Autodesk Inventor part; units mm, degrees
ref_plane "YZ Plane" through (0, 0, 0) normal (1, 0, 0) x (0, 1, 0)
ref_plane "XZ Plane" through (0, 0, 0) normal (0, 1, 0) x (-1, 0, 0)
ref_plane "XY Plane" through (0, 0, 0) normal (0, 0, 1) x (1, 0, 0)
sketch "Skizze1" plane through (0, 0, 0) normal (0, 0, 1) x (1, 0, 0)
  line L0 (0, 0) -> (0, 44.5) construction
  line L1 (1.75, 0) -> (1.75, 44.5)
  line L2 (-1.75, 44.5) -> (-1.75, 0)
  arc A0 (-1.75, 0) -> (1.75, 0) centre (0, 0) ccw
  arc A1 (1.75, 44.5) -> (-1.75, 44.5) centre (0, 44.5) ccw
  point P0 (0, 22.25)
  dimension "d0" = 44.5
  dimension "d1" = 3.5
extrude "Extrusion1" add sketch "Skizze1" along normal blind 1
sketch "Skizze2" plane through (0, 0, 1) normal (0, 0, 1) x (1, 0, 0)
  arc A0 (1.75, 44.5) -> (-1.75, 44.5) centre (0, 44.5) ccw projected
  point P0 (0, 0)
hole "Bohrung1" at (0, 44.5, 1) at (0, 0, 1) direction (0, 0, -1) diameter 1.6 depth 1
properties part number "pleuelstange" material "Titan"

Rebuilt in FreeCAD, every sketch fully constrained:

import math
import FreeCAD as App
import Part
import Sketcher
Q = App.Units.Quantity

doc = App.newDocument("Part")
body = doc.addObject("PartDesign::Body", "Body")

# Sketch on XY plane
sketch1 = body.newObject("Sketcher::SketchObject", "Sketch")
sketch1.AttachmentSupport = (doc.getObject("XY_Plane"), [""])
sketch1.MapMode = "FlatFace"
sketch1.addGeometry(Part.ArcOfCircle(Part.Circle(App.Vector(0, 0, 0), App.Vector(0, 0, 1), 1.8), math.radians(180), math.radians(360)), False)
sketch1.addGeometry(Part.LineSegment(App.Vector(1.8, 0, 0), App.Vector(1.8, 44.5, 0)), False)
sketch1.addGeometry(Part.ArcOfCircle(Part.Circle(App.Vector(0, 44.5, 0), App.Vector(0, 0, 1), 1.8), math.radians(0), math.radians(180)), False)
sketch1.addGeometry(Part.LineSegment(App.Vector(-1.8, 44.5, 0), App.Vector(-1.8, 0, 0)), False)
sketch1.addConstraint(Sketcher.Constraint("Tangent", 0, 2, 1, 1))
sketch1.addConstraint(Sketcher.Constraint("Tangent", 1, 2, 2, 1))
sketch1.addConstraint(Sketcher.Constraint("Tangent", 2, 2, 3, 1))
sketch1.addConstraint(Sketcher.Constraint("Tangent", 3, 2, 0, 1))
sketch1.addConstraint(Sketcher.Constraint("Vertical", 1))
sketch1.addConstraint(Sketcher.Constraint("Vertical", 3))
sketch1.addConstraint(Sketcher.Constraint("Coincident", 0, 3, -1, 1))
sketch1.addConstraint(Sketcher.Constraint("Radius", 0, Q("1.75 mm")))
sketch1.addConstraint(Sketcher.Constraint("DistanceY", 1, 1, 1, 2, Q("44.5 mm")))
pad1 = body.newObject("PartDesign::Pad", "Pad")
pad1.Profile = sketch1
pad1.Length = 1

# Sketch on XY plane
sketch2 = body.newObject("Sketcher::SketchObject", "Sketch001")
sketch2.AttachmentSupport = (doc.getObject("XY_Plane"), [""])
sketch2.MapMode = "FlatFace"
sketch2.AttachmentOffset = App.Placement(App.Vector(0, 0, 1), App.Rotation())
sketch2.addGeometry(Part.Circle(App.Vector(0, 44.5, 0), App.Vector(0, 0, 1), 0.8), False)
sketch2.addGeometry(Part.Circle(App.Vector(0, 0, 0), App.Vector(0, 0, 1), 0.8), False)
sketch2.addConstraint(Sketcher.Constraint("Coincident", 1, 3, -1, 1))
sketch2.addConstraint(Sketcher.Constraint("Equal", 0, 1))
sketch2.addConstraint(Sketcher.Constraint("PointOnObject", 0, 3, -2))
sketch2.addConstraint(Sketcher.Constraint("Diameter", 0, Q("1.6 mm")))
sketch2.addConstraint(Sketcher.Constraint("DistanceY", -1, 1, 0, 3, Q("44.5 mm")))
doc.recompute()
hole = body.newObject("PartDesign::Hole", "Hole")
hole.Profile = sketch2
hole.ThreadType = "None"
hole.Diameter = 1.6
hole.DepthType = "Dimension"
hole.Depth = 1
hole.DrillPoint = "Flat"

doc.recompute()
